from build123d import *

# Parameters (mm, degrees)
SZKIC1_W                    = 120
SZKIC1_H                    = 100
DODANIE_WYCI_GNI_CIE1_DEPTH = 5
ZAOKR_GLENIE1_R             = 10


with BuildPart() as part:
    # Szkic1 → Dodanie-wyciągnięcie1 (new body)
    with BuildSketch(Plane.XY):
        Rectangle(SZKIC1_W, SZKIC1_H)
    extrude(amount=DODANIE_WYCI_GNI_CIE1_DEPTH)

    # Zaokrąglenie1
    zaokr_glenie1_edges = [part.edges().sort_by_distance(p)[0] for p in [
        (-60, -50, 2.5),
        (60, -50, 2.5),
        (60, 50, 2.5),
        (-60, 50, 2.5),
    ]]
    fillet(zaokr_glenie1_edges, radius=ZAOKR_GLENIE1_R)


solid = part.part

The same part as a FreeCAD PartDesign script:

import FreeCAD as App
import Part
import Sketcher


def edges_at(feature, points):
    """Names of the edges that pass closest to the given points."""
    edges = feature.Shape.Edges
    near = lambda p: min(range(len(edges)), key=lambda i: edges[i].distToShape(Part.Vertex(*p))[0])
    return sorted({f"Edge{near(p) + 1}" for p in points})

doc = App.newDocument("Part")
params = doc.addObject("Spreadsheet::Sheet", "Params")
for row, (alias, value) in enumerate([
    ("sketch1_width", "120 mm"),
    ("sketch1_height", "100 mm"),
    ("pad1_length", "5 mm"),
    ("fillet_radius", "10 mm"),
], start=1):
    params.set(f"A{row}", alias)
    params.set(f"B{row}", "=" + value)
    params.setAlias(f"B{row}", alias)

body = doc.addObject("PartDesign::Body", "Body")

# Sketch on XY plane
sketch1 = doc.addObject("Sketcher::SketchObject", "Sketch")
body.addObject(sketch1)
sketch1.AttachmentSupport = (doc.XY_Plane, [""])
sketch1.MapMode = "FlatFace"
sketch1.addGeometry(Part.LineSegment(App.Vector(-60, 50, 0), App.Vector(-60, -50, 0)), False)
sketch1.addGeometry(Part.LineSegment(App.Vector(-60, -50, 0), App.Vector(60, -50, 0)), False)
sketch1.addGeometry(Part.LineSegment(App.Vector(60, -50, 0), App.Vector(60, 50, 0)), False)
sketch1.addGeometry(Part.LineSegment(App.Vector(60, 50, 0), App.Vector(-60, 50, 0)), False)
sketch1.addConstraint(Sketcher.Constraint("Coincident", 0, 2, 1, 1))
sketch1.addConstraint(Sketcher.Constraint("Coincident", 1, 2, 2, 1))
sketch1.addConstraint(Sketcher.Constraint("Coincident", 2, 2, 3, 1))
sketch1.addConstraint(Sketcher.Constraint("Coincident", 3, 2, 0, 1))
sketch1.addConstraint(Sketcher.Constraint("Vertical", 0))
sketch1.addConstraint(Sketcher.Constraint("Horizontal", 1))
sketch1.addConstraint(Sketcher.Constraint("Vertical", 2))
sketch1.addConstraint(Sketcher.Constraint("Horizontal", 3))
sketch1.addConstraint(Sketcher.Constraint("Symmetric", 0, 2, 2, 2, -1, 1))
sketch1.addConstraint(Sketcher.Constraint("DistanceX", 1, 1, 1, 2, 120.0))
sketch1.addConstraint(Sketcher.Constraint("DistanceY", 0, 2, 0, 1, 100.0))
sketch1.setExpression("Constraints[9]", "Params.sketch1_width")
sketch1.setExpression("Constraints[10]", "Params.sketch1_height")
pad1 = doc.addObject("PartDesign::Pad", "Pad")
body.addObject(pad1)
pad1.Profile = sketch1
pad1.setExpression("Length", "Params.pad1_length")
doc.recompute()

fillet = doc.addObject("PartDesign::Fillet", "Fillet")
body.addObject(fillet)
fillet.Base = (pad1, edges_at(pad1, [
    (-60, -50, 2.5),
    (60, -50, 2.5),
    (60, 50, 2.5),
    (-60, 50, 2.5),
]))
fillet.setExpression("Radius", "Params.fillet_radius")

doc.recompute()
